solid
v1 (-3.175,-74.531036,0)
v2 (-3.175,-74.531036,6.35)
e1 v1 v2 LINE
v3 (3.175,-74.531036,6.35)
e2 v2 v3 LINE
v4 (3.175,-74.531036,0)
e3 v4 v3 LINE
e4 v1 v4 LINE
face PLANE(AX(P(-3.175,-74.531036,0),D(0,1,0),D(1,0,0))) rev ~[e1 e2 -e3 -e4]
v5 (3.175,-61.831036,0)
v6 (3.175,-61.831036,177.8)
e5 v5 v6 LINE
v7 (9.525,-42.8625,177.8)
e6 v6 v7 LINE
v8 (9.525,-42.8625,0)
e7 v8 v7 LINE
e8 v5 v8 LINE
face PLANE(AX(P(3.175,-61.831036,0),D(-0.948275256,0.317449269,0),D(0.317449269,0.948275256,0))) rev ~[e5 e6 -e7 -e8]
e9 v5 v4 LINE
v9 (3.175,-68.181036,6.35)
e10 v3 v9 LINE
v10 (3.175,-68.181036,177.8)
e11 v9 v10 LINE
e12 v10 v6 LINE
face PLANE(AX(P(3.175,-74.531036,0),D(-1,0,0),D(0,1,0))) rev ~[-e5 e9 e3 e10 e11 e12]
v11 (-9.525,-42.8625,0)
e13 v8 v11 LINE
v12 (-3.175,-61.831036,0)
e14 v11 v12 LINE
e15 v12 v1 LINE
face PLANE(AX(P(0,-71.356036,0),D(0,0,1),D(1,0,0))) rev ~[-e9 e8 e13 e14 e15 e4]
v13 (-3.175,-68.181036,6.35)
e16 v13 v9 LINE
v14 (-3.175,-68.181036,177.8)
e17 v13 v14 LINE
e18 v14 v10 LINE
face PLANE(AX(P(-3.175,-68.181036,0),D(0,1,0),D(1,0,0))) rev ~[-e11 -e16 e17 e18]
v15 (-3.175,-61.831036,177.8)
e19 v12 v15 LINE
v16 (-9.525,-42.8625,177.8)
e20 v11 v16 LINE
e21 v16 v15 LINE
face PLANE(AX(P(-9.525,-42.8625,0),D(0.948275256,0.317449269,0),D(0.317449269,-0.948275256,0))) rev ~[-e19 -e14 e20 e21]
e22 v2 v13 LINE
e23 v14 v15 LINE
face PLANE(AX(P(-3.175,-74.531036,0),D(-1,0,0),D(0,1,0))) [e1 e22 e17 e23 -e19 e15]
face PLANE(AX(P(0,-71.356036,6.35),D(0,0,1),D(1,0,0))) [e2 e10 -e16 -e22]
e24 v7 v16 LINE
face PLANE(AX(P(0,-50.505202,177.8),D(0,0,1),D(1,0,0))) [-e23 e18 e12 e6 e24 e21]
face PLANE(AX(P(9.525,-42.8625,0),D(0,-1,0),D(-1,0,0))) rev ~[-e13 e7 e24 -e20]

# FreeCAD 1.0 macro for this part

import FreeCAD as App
import Part
import Sketcher
Q = App.Units.Quantity

doc = App.newDocument("Part")
body = doc.addObject("PartDesign::Body", "Body")

# Sketch on XY plane
sketch1 = body.newObject("Sketcher::SketchObject", "Sketch")
sketch1.AttachmentSupport = (doc.getObject("XY_Plane"), [""])
sketch1.MapMode = "FlatFace"
sketch1.addGeometry([
    Part.LineSegment(App.Vector(10, -43, 0), App.Vector(-10, -43, 0)),  # 0
    Part.LineSegment(App.Vector(-10, -43, 0), App.Vector(-3, -62, 0)),  # 1
    Part.LineSegment(App.Vector(-3, -62, 0), App.Vector(-3, -68, 0)),  # 2
    Part.LineSegment(App.Vector(-3, -68, 0), App.Vector(3, -68, 0)),  # 3
    Part.LineSegment(App.Vector(3, -68, 0), App.Vector(3, -62, 0)),  # 4
    Part.LineSegment(App.Vector(3, -62, 0), App.Vector(10, -43, 0)),  # 5
], False)
sketch1.addConstraint([
    Sketcher.Constraint("Coincident", 0, 2, 1, 1),
    Sketcher.Constraint("Coincident", 1, 2, 2, 1),
    Sketcher.Constraint("Coincident", 2, 2, 3, 1),
    Sketcher.Constraint("Coincident", 3, 2, 4, 1),
    Sketcher.Constraint("Coincident", 4, 2, 5, 1),
    Sketcher.Constraint("Coincident", 5, 2, 0, 1),
    Sketcher.Constraint("Horizontal", 0),
    Sketcher.Constraint("Vertical", 2),
    Sketcher.Constraint("Horizontal", 3),
    Sketcher.Constraint("Vertical", 4),
    Sketcher.Constraint("Symmetric", 1, 2, 4, 2, -2),
    Sketcher.Constraint("Equal", 3, 2),
    Sketcher.Constraint("Equal", 1, 5),
    Sketcher.Constraint("DistanceX", 0, 2, 0, 1, Q("0.75 in")),
    Sketcher.Constraint("DistanceX", 3, 1, 3, 2, Q("0.25 in")),
    Sketcher.Constraint("DistanceY", 0, 2, -1, 1, Q("1.6875 in")),
    Sketcher.Constraint("Distance", 1, 20.003196),
])
pad1 = body.newObject("PartDesign::Pad", "Pad")
pad1.Profile = sketch1
pad1.Length = Q("7 in")

# Sketch on XY plane
sketch2 = body.newObject("Sketcher::SketchObject", "Sketch001")
sketch2.AttachmentSupport = (doc.getObject("XY_Plane"), [""])
sketch2.MapMode = "FlatFace"
sketch2.addGeometry([
    Part.LineSegment(App.Vector(-3, -68, 0), App.Vector(-3, -75, 0)),
    Part.LineSegment(App.Vector(-3, -75, 0), App.Vector(3, -75, 0)),
    Part.LineSegment(App.Vector(3, -75, 0), App.Vector(3, -68, 0)),
    Part.LineSegment(App.Vector(3, -68, 0), App.Vector(-3, -68, 0)),
], False)
sketch2.addConstraint([
    Sketcher.Constraint("Coincident", 0, 2, 1, 1),
    Sketcher.Constraint("Coincident", 1, 2, 2, 1),
    Sketcher.Constraint("Coincident", 2, 2, 3, 1),
    Sketcher.Constraint("Coincident", 3, 2, 0, 1),
    Sketcher.Constraint("Vertical", 0),
    Sketcher.Constraint("Horizontal", 1),
    Sketcher.Constraint("Vertical", 2),
    Sketcher.Constraint("Horizontal", 3),
    Sketcher.Constraint("Equal", 3, 0),
    Sketcher.Constraint("DistanceX", 1, 1, 1, 2, Q("0.25 in")),
    Sketcher.Constraint("DistanceX", 0, 2, -1, 1, Q("0.125 in")),
    Sketcher.Constraint("DistanceY", 0, 2, -1, 1, 74.531036),
])
pad2 = body.newObject("PartDesign::Pad", "Pad001")
pad2.Profile = sketch2
pad2.Length = Q("0.25 in")

doc.recompute()
